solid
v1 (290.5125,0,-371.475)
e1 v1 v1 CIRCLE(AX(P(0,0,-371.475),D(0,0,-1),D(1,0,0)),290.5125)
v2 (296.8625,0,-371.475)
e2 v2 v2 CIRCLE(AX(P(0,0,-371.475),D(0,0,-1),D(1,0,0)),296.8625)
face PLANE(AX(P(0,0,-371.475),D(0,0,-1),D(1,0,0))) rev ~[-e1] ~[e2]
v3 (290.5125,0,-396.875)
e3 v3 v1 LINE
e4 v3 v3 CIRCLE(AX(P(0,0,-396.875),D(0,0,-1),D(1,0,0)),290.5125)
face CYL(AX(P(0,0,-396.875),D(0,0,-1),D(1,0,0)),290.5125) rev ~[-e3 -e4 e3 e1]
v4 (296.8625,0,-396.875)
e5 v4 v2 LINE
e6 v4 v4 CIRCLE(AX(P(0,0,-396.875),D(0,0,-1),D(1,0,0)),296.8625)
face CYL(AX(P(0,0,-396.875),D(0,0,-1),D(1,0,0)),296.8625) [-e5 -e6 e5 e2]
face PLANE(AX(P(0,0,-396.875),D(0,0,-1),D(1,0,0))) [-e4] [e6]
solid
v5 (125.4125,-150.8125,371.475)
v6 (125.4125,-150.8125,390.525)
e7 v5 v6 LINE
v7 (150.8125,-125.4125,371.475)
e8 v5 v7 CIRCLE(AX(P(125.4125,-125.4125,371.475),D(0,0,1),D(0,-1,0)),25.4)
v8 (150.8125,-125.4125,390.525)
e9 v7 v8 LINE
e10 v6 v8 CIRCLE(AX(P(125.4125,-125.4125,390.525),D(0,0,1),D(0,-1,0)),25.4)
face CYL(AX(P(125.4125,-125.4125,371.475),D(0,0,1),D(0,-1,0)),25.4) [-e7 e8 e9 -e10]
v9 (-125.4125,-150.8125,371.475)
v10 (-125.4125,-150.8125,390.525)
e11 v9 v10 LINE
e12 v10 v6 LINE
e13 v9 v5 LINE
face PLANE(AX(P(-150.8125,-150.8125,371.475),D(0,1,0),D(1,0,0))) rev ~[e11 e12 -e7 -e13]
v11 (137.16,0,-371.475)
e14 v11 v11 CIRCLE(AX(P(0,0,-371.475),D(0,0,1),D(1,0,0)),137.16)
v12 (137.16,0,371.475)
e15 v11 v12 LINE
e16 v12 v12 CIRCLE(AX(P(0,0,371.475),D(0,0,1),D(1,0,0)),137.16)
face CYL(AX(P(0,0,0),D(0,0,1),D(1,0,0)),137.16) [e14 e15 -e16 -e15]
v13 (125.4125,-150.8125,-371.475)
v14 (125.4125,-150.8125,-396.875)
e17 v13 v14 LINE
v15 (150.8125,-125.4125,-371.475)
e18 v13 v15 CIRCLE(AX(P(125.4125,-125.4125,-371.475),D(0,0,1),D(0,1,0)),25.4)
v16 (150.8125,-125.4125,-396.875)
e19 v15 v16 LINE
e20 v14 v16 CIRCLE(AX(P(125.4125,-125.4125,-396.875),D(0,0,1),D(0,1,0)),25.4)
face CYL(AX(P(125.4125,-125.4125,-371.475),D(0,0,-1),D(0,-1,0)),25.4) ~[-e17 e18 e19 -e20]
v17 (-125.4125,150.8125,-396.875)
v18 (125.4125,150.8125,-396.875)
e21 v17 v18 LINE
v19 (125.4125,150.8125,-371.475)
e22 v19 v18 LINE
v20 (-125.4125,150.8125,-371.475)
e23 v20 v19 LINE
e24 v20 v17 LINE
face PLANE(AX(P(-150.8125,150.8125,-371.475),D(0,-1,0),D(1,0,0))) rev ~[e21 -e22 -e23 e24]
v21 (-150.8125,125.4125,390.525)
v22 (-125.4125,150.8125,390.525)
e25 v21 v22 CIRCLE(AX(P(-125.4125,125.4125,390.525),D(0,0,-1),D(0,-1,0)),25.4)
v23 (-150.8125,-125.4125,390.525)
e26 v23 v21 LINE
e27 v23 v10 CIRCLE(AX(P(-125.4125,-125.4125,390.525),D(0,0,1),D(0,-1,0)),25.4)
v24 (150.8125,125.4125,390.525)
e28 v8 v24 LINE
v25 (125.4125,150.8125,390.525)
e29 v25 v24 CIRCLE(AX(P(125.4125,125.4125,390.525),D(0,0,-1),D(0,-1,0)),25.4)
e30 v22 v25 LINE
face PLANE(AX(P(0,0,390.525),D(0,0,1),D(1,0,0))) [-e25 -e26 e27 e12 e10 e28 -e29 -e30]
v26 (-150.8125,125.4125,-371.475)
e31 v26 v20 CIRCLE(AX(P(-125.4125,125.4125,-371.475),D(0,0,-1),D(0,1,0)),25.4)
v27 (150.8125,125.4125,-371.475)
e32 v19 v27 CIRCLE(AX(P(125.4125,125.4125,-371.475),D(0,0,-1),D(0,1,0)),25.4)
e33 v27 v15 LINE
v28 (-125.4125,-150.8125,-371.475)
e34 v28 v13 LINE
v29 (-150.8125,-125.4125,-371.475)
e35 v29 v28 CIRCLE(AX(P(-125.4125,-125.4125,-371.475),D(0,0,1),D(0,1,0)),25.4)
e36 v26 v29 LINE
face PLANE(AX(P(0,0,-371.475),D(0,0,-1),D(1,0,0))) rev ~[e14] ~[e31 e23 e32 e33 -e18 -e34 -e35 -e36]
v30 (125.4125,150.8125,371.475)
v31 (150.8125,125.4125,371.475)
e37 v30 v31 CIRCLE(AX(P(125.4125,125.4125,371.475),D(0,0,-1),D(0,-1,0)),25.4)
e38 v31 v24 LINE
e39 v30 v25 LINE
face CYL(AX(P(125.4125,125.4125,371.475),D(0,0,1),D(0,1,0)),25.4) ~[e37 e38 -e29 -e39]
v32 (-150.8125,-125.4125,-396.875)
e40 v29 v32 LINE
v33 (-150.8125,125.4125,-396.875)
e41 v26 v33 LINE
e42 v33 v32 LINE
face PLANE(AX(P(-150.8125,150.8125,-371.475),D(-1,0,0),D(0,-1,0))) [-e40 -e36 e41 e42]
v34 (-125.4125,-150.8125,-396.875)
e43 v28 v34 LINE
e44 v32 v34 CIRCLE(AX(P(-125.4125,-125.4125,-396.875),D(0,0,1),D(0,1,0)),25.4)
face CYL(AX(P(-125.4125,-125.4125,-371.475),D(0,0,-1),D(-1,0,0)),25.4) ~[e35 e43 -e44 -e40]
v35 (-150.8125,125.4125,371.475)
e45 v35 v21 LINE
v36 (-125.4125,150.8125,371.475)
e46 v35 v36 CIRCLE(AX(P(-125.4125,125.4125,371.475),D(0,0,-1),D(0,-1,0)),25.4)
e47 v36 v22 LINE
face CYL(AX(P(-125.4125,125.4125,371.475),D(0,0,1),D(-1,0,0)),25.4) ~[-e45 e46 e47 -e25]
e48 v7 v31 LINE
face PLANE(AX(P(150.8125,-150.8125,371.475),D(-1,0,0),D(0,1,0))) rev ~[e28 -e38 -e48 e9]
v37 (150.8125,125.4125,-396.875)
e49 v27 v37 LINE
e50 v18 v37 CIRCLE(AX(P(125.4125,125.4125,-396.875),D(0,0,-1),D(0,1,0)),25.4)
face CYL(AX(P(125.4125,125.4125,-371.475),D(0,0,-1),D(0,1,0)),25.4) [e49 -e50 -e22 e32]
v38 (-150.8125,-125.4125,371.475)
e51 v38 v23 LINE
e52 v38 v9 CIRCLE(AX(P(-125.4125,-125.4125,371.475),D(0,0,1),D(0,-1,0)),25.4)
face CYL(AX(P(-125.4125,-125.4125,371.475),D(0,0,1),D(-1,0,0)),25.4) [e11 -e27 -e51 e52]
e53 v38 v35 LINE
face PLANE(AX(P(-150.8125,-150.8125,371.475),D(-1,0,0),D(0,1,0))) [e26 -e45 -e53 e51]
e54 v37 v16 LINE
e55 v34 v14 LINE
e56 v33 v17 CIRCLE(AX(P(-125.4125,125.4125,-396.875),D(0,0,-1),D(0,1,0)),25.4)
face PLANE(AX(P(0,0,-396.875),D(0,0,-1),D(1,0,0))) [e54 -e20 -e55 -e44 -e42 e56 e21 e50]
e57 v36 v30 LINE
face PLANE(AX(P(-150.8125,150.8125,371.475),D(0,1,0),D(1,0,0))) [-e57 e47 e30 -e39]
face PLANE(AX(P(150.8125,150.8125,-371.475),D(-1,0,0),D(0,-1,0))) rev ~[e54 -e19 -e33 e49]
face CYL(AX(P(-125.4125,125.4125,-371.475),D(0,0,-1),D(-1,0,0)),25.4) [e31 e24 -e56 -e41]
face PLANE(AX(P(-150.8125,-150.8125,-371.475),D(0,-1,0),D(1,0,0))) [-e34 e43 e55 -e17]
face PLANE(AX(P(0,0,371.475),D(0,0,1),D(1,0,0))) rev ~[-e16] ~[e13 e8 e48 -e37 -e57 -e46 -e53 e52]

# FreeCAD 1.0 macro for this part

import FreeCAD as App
import Part
import Sketcher
from FreeCAD import Vector
Q = App.Units.Quantity


def edges_at(feature, points):
    """Names of the edges that pass closest to the given points."""
    edges = feature.Shape.Edges
    near = lambda p: min(range(len(edges)), key=lambda i: edges[i].distToShape(Part.Vertex(*p))[0])
    return sorted({f"Edge{near(p) + 1}" for p in points})

doc = App.newDocument("Part")
body = doc.addObject("PartDesign::Body", "Body")

# Sketch on XY plane
sketch1 = body.newObject("Sketcher::SketchObject", "Sketch")
sketch1.AttachmentSupport = (doc.getObject("XY_Plane"), [""])
sketch1.MapMode = "FlatFace"
sketch1.addGeometry(Part.Circle(Vector(0, 0, 0), Vector(0, 0, 1), 137.16), False)
sketch1.addConstraint([
    Sketcher.Constraint("Coincident", 0, 3, -1, 1),
    Sketcher.Constraint("Diameter", 0, Q("10.8 in")),
])
pad1 = body.newObject("PartDesign::Pad", "Pad")
pad1.Profile = sketch1
pad1.Length = Q("29.25 in")
pad1.Midplane = True

# Sketch on XY plane
sketch2 = body.newObject("Sketcher::SketchObject", "Sketch001")
sketch2.AttachmentSupport = (doc.getObject("XY_Plane"), [""])
sketch2.MapMode = "FlatFace"
sketch2.AttachmentOffset = App.Placement(Vector(0, 0, 14.625 * 25.4), App.Rotation())
sketch2.addGeometry([
    Part.LineSegment(Vector(-150.8125, 150.8125, 0), Vector(-150.8125, -150.8125, 0)),
    Part.LineSegment(Vector(-150.8125, -150.8125, 0), Vector(150.8125, -150.8125, 0)),
    Part.LineSegment(Vector(150.8125, -150.8125, 0), Vector(150.8125, 150.8125, 0)),
    Part.LineSegment(Vector(150.8125, 150.8125, 0), Vector(-150.8125, 150.8125, 0)),
], False)
sketch2.addConstraint([
    Sketcher.Constraint("Coincident", 0, 2, 1, 1),
    Sketcher.Constraint("Coincident", 1, 2, 2, 1),
    Sketcher.Constraint("Coincident", 2, 2, 3, 1),
    Sketcher.Constraint("Coincident", 3, 2, 0, 1),
    Sketcher.Constraint("Vertical", 0),
    Sketcher.Constraint("Horizontal", 1),
    Sketcher.Constraint("Vertical", 2),
    Sketcher.Constraint("Horizontal", 3),
    Sketcher.Constraint("Symmetric", 0, 2, 2, 2, -1, 1),
    Sketcher.Constraint("Equal", 3, 0),
    Sketcher.Constraint("DistanceX", 1, 1, 1, 2, Q("11.875 in")),
])
pad2 = body.newObject("PartDesign::Pad", "Pad001")
pad2.Profile = sketch2
pad2.Length = Q("0.75 in")

# Sketch on XY plane
sketch3 = body.newObject("Sketcher::SketchObject", "Sketch002")
sketch3.AttachmentSupport = (doc.getObject("XY_Plane"), [""])
sketch3.MapMode = "FlatFace"
sketch3.AttachmentOffset = App.Placement(Vector(0, 0, -14.625 * 25.4), App.Rotation())
sketch3.addGeometry([
    Part.LineSegment(Vector(-150.8125, -150.8125, 0), Vector(-150.8125, 150.8125, 0)),
    Part.LineSegment(Vector(-150.8125, 150.8125, 0), Vector(150.8125, 150.8125, 0)),
    Part.LineSegment(Vector(150.8125, 150.8125, 0), Vector(150.8125, -150.8125, 0)),
    Part.LineSegment(Vector(150.8125, -150.8125, 0), Vector(-150.8125, -150.8125, 0)),
], False)
sketch3.addConstraint([
    Sketcher.Constraint("Coincident", 0, 2, 1, 1),
    Sketcher.Constraint("Coincident", 1, 2, 2, 1),
    Sketcher.Constraint("Coincident", 2, 2, 3, 1),
    Sketcher.Constraint("Coincident", 3, 2, 0, 1),
    Sketcher.Constraint("Vertical", 0),
    Sketcher.Constraint("Horizontal", 1),
    Sketcher.Constraint("Vertical", 2),
    Sketcher.Constraint("Horizontal", 3),
    Sketcher.Constraint("Symmetric", 0, 2, 2, 2, -1, 1),
    Sketcher.Constraint("Equal", 3, 0),
    Sketcher.Constraint("DistanceX", 1, 1, 1, 2, Q("11.875 in")),
])
pad3 = body.newObject("PartDesign::Pad", "Pad002")
pad3.Profile = sketch3
pad3.Length = Q("1 in")
pad3.Reversed = True
doc.recompute()

fillet = body.newObject("PartDesign::Fillet", "Fillet")
fillet.Base = (pad3, edges_at(pad3, [
    (150.812, -150.812, -384.175),
    (-150.812, -150.812, -384.175),
    (150.812, 150.812, -384.175),
    (-150.812, 150.812, -384.175),
    (-150.812, 150.812, 381),
    (150.812, 150.812, 381),
    (-150.812, -150.812, 381),
    (150.812, -150.812, 381),
]))
fillet.Radius = Q("1 in")
body2 = doc.addObject("PartDesign::Body", "Body001")

# Sketch on XY plane
sketch4 = body2.newObject("Sketcher::SketchObject", "Sketch003")
sketch4.AttachmentSupport = (doc.getObject("XY_Plane001"), [""])
sketch4.MapMode = "FlatFace"
sketch4.AttachmentOffset = App.Placement(Vector(0, 0, -15.625 * 25.4), App.Rotation())
sketch4.addGeometry([
    Part.Circle(Vector(0, 0, 0), Vector(0, 0, 1), 296.8625),
    Part.Circle(Vector(0, 0, 0), Vector(0, 0, 1), 290.5125),
], False)
sketch4.addConstraint([
    Sketcher.Constraint("Coincident", 0, 3, -1, 1),
    Sketcher.Constraint("Coincident", 1, 3, -1, 1),
    Sketcher.Constraint("Diameter", 0, Q("23.375 in")),
    Sketcher.Constraint("Diameter", 1, Q("22.875 in")),
])
pad4 = body2.newObject("PartDesign::Pad", "Pad003")
pad4.Profile = sketch4
pad4.Length = Q("1 in")

doc.recompute()
